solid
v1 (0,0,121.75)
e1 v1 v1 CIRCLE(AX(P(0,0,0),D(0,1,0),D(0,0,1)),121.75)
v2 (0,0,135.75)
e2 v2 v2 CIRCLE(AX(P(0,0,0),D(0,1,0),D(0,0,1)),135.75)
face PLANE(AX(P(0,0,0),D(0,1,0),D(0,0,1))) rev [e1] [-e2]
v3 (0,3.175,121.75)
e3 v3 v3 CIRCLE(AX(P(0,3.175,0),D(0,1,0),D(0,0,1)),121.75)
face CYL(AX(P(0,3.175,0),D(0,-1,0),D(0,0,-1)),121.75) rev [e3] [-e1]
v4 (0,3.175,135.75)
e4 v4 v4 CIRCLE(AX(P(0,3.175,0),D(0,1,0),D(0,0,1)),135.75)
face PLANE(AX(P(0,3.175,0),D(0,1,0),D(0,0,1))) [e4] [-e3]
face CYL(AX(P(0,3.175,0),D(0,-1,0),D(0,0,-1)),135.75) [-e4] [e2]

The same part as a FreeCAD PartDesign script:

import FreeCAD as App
import Part
import Sketcher

V = App.Vector

doc = App.newDocument("Part")
body = doc.addObject("PartDesign::Body", "Body")

# Sketch on XZ plane
sketch1 = doc.addObject("Sketcher::SketchObject", "Sketch")
body.addObject(sketch1)
sketch1.AttachmentSupport = (doc.XZ_Plane, [""])
sketch1.MapMode = "FlatFace"
sketch1.addGeometry(Part.Circle(V(0, 0, 0), V(0, 0, 1), 136), False)
sketch1.addGeometry(Part.Circle(V(0, 0, 0), V(0, 0, 1), 122), False)
sketch1.addConstraint(Sketcher.Constraint("Coincident", 0, 3, -1, 1))
sketch1.addConstraint(Sketcher.Constraint("Coincident", 1, 3, -1, 1))
sketch1.addConstraint(Sketcher.Constraint("Diameter", 0, 271.5))
sketch1.addConstraint(Sketcher.Constraint("Diameter", 1, 243.5))
pad1 = doc.addObject("PartDesign::Pad", "Pad")
body.addObject(pad1)
pad1.Profile = sketch1
pad1.Length = 3.175
pad1.Reversed = True

doc.recompute()
